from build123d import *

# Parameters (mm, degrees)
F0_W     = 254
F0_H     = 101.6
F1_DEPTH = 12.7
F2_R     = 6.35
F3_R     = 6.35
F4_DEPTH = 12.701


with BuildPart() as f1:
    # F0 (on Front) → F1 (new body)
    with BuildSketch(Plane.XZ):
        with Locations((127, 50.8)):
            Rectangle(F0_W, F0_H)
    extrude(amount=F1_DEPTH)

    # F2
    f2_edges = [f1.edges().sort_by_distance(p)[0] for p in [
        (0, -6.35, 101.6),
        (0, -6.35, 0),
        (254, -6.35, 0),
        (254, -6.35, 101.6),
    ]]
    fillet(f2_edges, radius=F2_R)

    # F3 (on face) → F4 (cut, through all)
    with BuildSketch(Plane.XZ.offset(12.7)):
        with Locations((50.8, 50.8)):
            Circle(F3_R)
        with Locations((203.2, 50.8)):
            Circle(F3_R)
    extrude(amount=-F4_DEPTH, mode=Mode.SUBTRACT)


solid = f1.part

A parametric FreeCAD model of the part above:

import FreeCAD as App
import Part
import Sketcher
Q = App.Units.Quantity


def edges_at(feature, points):
    """Names of the edges that pass closest to the given points."""
    edges = feature.Shape.Edges
    near = lambda p: min(range(len(edges)), key=lambda i: edges[i].distToShape(Part.Vertex(*p))[0])
    return sorted({f"Edge{near(p) + 1}" for p in points})

doc = App.newDocument("Part")
params = doc.addObject("Spreadsheet::Sheet", "Params")
for row, (alias, value) in enumerate([
    ("sketch1_width", "10 in"),
    ("sketch1_height", "4 in"),
    ("pad1_length", "0.5 in"),
    ("fillet_radius", "0.25 in"),
    ("sketch2_diameter", "0.5 in"),
], start=1):
    params.set(f"A{row}", alias)
    params.set(f"B{row}", "=" + value)
    params.setAlias(f"B{row}", alias)

body = doc.addObject("PartDesign::Body", "Body")

# Sketch on XZ plane
sketch1 = doc.addObject("Sketcher::SketchObject", "Sketch")
body.addObject(sketch1)
sketch1.AttachmentSupport = (doc.XZ_Plane, [""])
sketch1.MapMode = "FlatFace"
sketch1.addGeometry([
    Part.LineSegment(App.Vector(0, 101.6, 0), App.Vector(0, 0, 0)),
    Part.LineSegment(App.Vector(0, 0, 0), App.Vector(254, 0, 0)),
    Part.LineSegment(App.Vector(254, 0, 0), App.Vector(254, 101.6, 0)),
    Part.LineSegment(App.Vector(254, 101.6, 0), App.Vector(0, 101.6, 0)),
], False)
sketch1.addConstraint([
    Sketcher.Constraint("Coincident", 0, 2, 1, 1),
    Sketcher.Constraint("Coincident", 1, 2, 2, 1),
    Sketcher.Constraint("Coincident", 2, 2, 3, 1),
    Sketcher.Constraint("Coincident", 3, 2, 0, 1),
    Sketcher.Constraint("Vertical", 0),
    Sketcher.Constraint("Horizontal", 1),
    Sketcher.Constraint("Vertical", 2),
    Sketcher.Constraint("Horizontal", 3),
    Sketcher.Constraint("Coincident", 0, 2, -1, 1),
    Sketcher.Constraint("DistanceX", 1, 1, 1, 2, Q("10 in")),
    Sketcher.Constraint("DistanceY", 0, 2, 0, 1, Q("4 in")),
])
sketch1.setExpression("Constraints[9]", "Params.sketch1_width")
sketch1.setExpression("Constraints[10]", "Params.sketch1_height")
pad1 = doc.addObject("PartDesign::Pad", "Pad")
body.addObject(pad1)
pad1.Profile = sketch1
pad1.setExpression("Length", "Params.pad1_length")
doc.recompute()

fillet = doc.addObject("PartDesign::Fillet", "Fillet")
body.addObject(fillet)
fillet.Base = (pad1, edges_at(pad1, [
    (0, -6.35, 101.6),
    (0, -6.35, 0),
    (254, -6.35, 0),
    (254, -6.35, 101.6),
]))
fillet.setExpression("Radius", "Params.fillet_radius")

# Sketch on XZ plane
sketch2 = doc.addObject("Sketcher::SketchObject", "Sketch001")
body.addObject(sketch2)
sketch2.AttachmentSupport = (doc.XZ_Plane, [""])
sketch2.MapMode = "FlatFace"
sketch2.AttachmentOffset = App.Placement(App.Vector(0, 0, 0.5 * 25.4), App.Rotation())
sketch2.addGeometry([
    Part.Circle(App.Vector(50.8, 50.8, 0), App.Vector(0, 0, 1), 6.35),
    Part.Circle(App.Vector(203.2, 50.8, 0), App.Vector(0, 0, 1), 6.35),
], False)
sketch2.addConstraint([
    Sketcher.Constraint("Equal", 0, 1),
    Sketcher.Constraint("Horizontal", 0, 3, 1, 3),
    Sketcher.Constraint("Diameter", 0, Q("0.5 in")),
    Sketcher.Constraint("DistanceX", -1, 1, 0, 3, Q("2 in")),
    Sketcher.Constraint("DistanceY", -1, 1, 0, 3, Q("2 in")),
    Sketcher.Constraint("DistanceX", -1, 1, 1, 3, Q("8 in")),
])
sketch2.setExpression("Constraints[2]", "Params.sketch2_diameter")
pocket1 = doc.addObject("PartDesign::Pocket", "Pocket")
body.addObject(pocket1)
pocket1.Profile = sketch2
pocket1.Type = "ThroughAll"

doc.recompute()
